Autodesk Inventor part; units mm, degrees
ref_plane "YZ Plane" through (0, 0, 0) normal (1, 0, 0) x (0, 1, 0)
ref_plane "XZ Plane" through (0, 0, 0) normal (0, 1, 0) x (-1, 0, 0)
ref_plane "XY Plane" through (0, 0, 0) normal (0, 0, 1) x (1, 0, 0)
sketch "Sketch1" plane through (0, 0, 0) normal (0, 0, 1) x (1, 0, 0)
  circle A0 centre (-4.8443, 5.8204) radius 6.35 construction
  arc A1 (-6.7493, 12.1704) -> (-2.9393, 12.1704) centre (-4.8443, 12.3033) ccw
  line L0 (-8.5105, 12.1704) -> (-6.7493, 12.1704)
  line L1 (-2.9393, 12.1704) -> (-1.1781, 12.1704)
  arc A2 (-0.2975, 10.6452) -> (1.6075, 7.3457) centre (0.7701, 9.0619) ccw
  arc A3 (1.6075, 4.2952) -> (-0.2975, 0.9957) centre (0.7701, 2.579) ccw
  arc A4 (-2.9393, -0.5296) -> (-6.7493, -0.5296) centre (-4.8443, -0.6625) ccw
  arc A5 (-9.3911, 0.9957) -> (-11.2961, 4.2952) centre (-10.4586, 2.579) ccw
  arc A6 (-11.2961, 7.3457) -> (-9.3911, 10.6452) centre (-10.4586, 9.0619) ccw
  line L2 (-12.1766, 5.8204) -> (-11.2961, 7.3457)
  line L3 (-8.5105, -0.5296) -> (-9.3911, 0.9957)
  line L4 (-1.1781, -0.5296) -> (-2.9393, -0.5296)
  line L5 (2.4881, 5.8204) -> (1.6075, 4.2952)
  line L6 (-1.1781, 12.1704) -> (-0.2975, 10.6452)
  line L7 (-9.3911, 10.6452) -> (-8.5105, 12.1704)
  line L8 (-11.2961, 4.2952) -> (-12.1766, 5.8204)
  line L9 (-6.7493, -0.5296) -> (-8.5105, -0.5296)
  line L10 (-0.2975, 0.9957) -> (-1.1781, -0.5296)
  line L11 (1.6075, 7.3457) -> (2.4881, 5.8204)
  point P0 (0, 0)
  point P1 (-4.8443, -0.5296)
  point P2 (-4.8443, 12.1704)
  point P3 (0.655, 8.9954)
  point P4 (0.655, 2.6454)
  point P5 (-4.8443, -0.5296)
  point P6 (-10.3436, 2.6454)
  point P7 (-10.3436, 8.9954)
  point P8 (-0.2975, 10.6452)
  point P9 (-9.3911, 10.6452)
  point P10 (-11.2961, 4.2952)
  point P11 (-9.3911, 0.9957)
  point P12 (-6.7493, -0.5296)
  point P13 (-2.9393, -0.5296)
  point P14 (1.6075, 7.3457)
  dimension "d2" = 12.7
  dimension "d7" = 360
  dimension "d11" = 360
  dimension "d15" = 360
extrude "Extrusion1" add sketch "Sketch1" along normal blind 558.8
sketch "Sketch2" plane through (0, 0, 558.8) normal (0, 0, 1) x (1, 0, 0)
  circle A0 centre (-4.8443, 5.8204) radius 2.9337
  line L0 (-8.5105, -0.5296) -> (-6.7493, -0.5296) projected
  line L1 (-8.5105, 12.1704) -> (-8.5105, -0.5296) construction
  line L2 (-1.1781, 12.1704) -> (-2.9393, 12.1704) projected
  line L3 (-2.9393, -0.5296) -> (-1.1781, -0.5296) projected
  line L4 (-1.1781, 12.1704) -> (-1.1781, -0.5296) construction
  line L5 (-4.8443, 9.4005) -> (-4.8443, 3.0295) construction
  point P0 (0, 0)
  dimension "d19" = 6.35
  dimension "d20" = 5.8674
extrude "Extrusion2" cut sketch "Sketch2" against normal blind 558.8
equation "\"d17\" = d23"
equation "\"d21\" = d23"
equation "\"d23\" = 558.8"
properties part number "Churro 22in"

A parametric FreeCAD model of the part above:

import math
import FreeCAD as App
import Part
import Sketcher
from FreeCAD import Vector
Q = App.Units.Quantity

doc = App.newDocument("Part")
params = doc.addObject("Spreadsheet::Sheet", "Params")
for row, (alias, value) in enumerate([
    ("sketch1_width", "0.075 in"),
    ("pad1_length", "22 in"),
    ("sketch2_diameter", "0.231 in"),
    ("pocket1_length", "22 in"),
], start=1):
    params.set(f"A{row}", alias)
    params.set(f"B{row}", "=" + value)
    params.setAlias(f"B{row}", alias)

body = doc.addObject("PartDesign::Body", "Body")

# Sketch on XY plane
sketch1 = body.newObject("Sketcher::SketchObject", "Sketch")
sketch1.AttachmentSupport = (doc.getObject("XY_Plane"), [""])
sketch1.MapMode = "FlatFace"
sketch1.addGeometry([
    Part.ArcOfCircle(Part.Circle(Vector(-4.8443, 12.3033, 0), Vector(0, 0, 1), 1.90963), math.radians(-176.009296), math.radians(-3.990704)),  # 0
    Part.LineSegment(Vector(-6.7493, 12.1704, 0), Vector(-8.5105, 12.1704, 0)),  # 1
    Part.LineSegment(Vector(-8.5105, 12.1704, 0), Vector(-9.3911, 10.6452, 0)),  # 2
    Part.ArcOfCircle(Part.Circle(Vector(-10.4586, 9.0619, 0), Vector(0, 0, 1), 1.909646), math.radians(-116.012225), math.radians(56.011177)),  # 3
    Part.LineSegment(Vector(-11.2961, 7.3457, 0), Vector(-12.1766, 5.8204, 0)),  # 4
    Part.LineSegment(Vector(-12.1766, 5.8204, 0), Vector(-11.2961, 4.2952, 0)),  # 5
    Part.ArcOfCircle(Part.Circle(Vector(-10.4586, 2.579, 0), Vector(0, 0, 1), 1.909554), math.radians(-56.011177), math.radians(116.012225)),  # 6
    Part.LineSegment(Vector(-9.3911, 0.9957, 0), Vector(-8.5105, -0.5296, 0)),  # 7
    Part.LineSegment(Vector(-8.5105, -0.5296, 0), Vector(-6.7493, -0.5296, 0)),  # 8
    Part.ArcOfCircle(Part.Circle(Vector(-4.8443, -0.6625, 0), Vector(0, 0, 1), 1.90963), math.radians(3.990704), math.radians(176.009296)),  # 9
    Part.LineSegment(Vector(-2.9393, -0.5296, 0), Vector(-1.1781, -0.5296, 0)),  # 10
    Part.LineSegment(Vector(-1.1781, -0.5296, 0), Vector(-0.2975, 0.9957, 0)),  # 11
    Part.ArcOfCircle(Part.Circle(Vector(0.7701, 2.579, 0), Vector(0, 0, 1), 1.909602), math.radians(63.990472), math.radians(236.008689)),  # 12
    Part.LineSegment(Vector(1.6075, 4.2952, 0), Vector(2.4881, 5.8204, 0)),  # 13
    Part.LineSegment(Vector(2.4881, 5.8204, 0), Vector(1.6075, 7.3457, 0)),  # 14
    Part.ArcOfCircle(Part.Circle(Vector(0.7701, 9.0619, 0), Vector(0, 0, 1), 1.90961), math.radians(123.991311), math.radians(296.009528)),  # 15
    Part.LineSegment(Vector(-0.2975, 10.6452, 0), Vector(-1.1781, 12.1704, 0)),  # 16
    Part.LineSegment(Vector(-1.1781, 12.1704, 0), Vector(-2.9393, 12.1704, 0)),  # 17
], False)
sketch1.addConstraint([
    Sketcher.Constraint("Coincident", 0, 1, 1, 1),
    Sketcher.Constraint("Coincident", 1, 2, 2, 1),
    Sketcher.Constraint("Coincident", 2, 2, 3, 2),
    Sketcher.Constraint("Coincident", 3, 1, 4, 1),
    Sketcher.Constraint("Coincident", 4, 2, 5, 1),
    Sketcher.Constraint("Coincident", 5, 2, 6, 2),
    Sketcher.Constraint("Coincident", 6, 1, 7, 1),
    Sketcher.Constraint("Coincident", 7, 2, 8, 1),
    Sketcher.Constraint("Coincident", 8, 2, 9, 2),
    Sketcher.Constraint("Coincident", 9, 1, 10, 1),
    Sketcher.Constraint("Coincident", 10, 2, 11, 1),
    Sketcher.Constraint("Coincident", 11, 2, 12, 2),
    Sketcher.Constraint("Coincident", 12, 1, 13, 1),
    Sketcher.Constraint("Coincident", 13, 2, 14, 1),
    Sketcher.Constraint("Coincident", 14, 2, 15, 2),
    Sketcher.Constraint("Coincident", 15, 1, 16, 1),
    Sketcher.Constraint("Coincident", 16, 2, 17, 1),
    Sketcher.Constraint("Coincident", 17, 2, 0, 2),
    Sketcher.Constraint("Horizontal", 1),
    Sketcher.Constraint("Horizontal", 8),
    Sketcher.Constraint("Horizontal", 10),
    Sketcher.Constraint("Horizontal", 17),
    Sketcher.Constraint("Radius", 0, 1.9096),
    Sketcher.Constraint("Radius", 3, 1.9096),
    Sketcher.Constraint("Radius", 6, 1.9096),
    Sketcher.Constraint("Radius", 9, 1.9096),
    Sketcher.Constraint("Radius", 12, 1.9096),
    Sketcher.Constraint("Radius", 15, 1.9096),
    Sketcher.Constraint("DistanceY", 4, 2, 1, 2, Q("0.25 in")),
    Sketcher.Constraint("DistanceY", 5, 2, 2, 2, Q("0.25 in")),
    Sketcher.Constraint("DistanceY", 6, 1, 3, 1, Q("0.25 in")),
    Sketcher.Constraint("DistanceY", 7, 2, 4, 2, Q("0.25 in")),
    Sketcher.Constraint("DistanceX", 8, 2, 9, 1, Q("0.15 in")),
    Sketcher.Constraint("DistanceY", 10, 2, 13, 2, Q("0.25 in")),
    Sketcher.Constraint("DistanceY", 11, 2, 14, 2, Q("0.25 in")),
    Sketcher.Constraint("DistanceY", 12, 1, 15, 1, Q("0.25 in")),
    Sketcher.Constraint("DistanceX", 0, 1, 17, 2, Q("0.15 in")),
    Sketcher.Constraint("DistanceY", -1, 1, 0, 3, Q("0.4843819 in")),
    Sketcher.Constraint("DistanceX", 0, 1, 0, 3, Q("0.075 in")),
    Sketcher.Constraint("DistanceX", 2, 2, 0, 1, Q("0.104 in")),
    Sketcher.Constraint("DistanceX", 3, 1, 2, 2, Q("0.075 in")),
    Sketcher.Constraint("DistanceX", 5, 2, 2, 2, Q("0.075 in")),
    Sketcher.Constraint("DistanceX", 5, 2, 6, 1, Q("0.075 in")),
    Sketcher.Constraint("DistanceX", 6, 1, 9, 3, Q("0.179 in")),
    Sketcher.Constraint("DistanceX", 8, 2, 9, 3, Q("0.075 in")),
    Sketcher.Constraint("DistanceX", 9, 1, 11, 2, Q("0.104 in")),
    Sketcher.Constraint("DistanceX", 11, 2, 12, 1, Q("0.075 in")),
    Sketcher.Constraint("DistanceX", 11, 2, 14, 2, Q("0.075 in")),
    Sketcher.Constraint("DistanceX", 15, 1, 14, 2, Q("0.075 in")),
    Sketcher.Constraint("DistanceX", 1, 2, 1, 1, 1.7612),
    Sketcher.Constraint("DistanceX", 8, 1, 8, 2, 1.7612),
    Sketcher.Constraint("DistanceX", 10, 1, 10, 2, 1.7612),
    Sketcher.Constraint("DistanceX", 17, 2, 17, 1, 1.7612),
    Sketcher.Constraint("DistanceY", -1, 1, 2, 2, Q("0.4191 in")),
    Sketcher.Constraint("DistanceY", -1, 1, 3, 1, Q("0.2892 in")),
    Sketcher.Constraint("DistanceX", 4, 2, -1, 1, Q("0.4794 in")),
    Sketcher.Constraint("DistanceY", -1, 1, 11, 2, Q("0.0392 in")),
    Sketcher.Constraint("DistanceY", -1, 1, 12, 1, Q("0.1691 in")),
    Sketcher.Constraint("Distance", 4, 1.7612),
    Sketcher.Constraint("Distance", 13, 1.7612),
])
sketch1.setExpression("Constraints[38]", "Params.sketch1_width")
pad1 = body.newObject("PartDesign::Pad", "Pad")
pad1.Profile = sketch1
pad1.setExpression("Length", "Params.pad1_length")

# Sketch on XY plane
sketch2 = body.newObject("Sketcher::SketchObject", "Sketch001")
sketch2.AttachmentSupport = (doc.getObject("XY_Plane"), [""])
sketch2.MapMode = "FlatFace"
sketch2.AttachmentOffset = App.Placement(Vector(0, 0, 22 * 25.4), App.Rotation())
sketch2.addGeometry(Part.Circle(Vector(-4.8, 5.8, 0), Vector(0, 0, 1), 2.9), False)
sketch2.addConstraint([
    Sketcher.Constraint("Diameter", 0, Q("0.231 in")),
    Sketcher.Constraint("DistanceX", 0, 3, -1, 1, 4.8443),
    Sketcher.Constraint("DistanceY", -1, 1, 0, 3, 5.8204),
])
sketch2.setExpression("Constraints[0]", "Params.sketch2_diameter")
pocket1 = body.newObject("PartDesign::Pocket", "Pocket")
pocket1.Profile = sketch2
pocket1.setExpression("Length", "Params.pocket1_length")

doc.recompute()
